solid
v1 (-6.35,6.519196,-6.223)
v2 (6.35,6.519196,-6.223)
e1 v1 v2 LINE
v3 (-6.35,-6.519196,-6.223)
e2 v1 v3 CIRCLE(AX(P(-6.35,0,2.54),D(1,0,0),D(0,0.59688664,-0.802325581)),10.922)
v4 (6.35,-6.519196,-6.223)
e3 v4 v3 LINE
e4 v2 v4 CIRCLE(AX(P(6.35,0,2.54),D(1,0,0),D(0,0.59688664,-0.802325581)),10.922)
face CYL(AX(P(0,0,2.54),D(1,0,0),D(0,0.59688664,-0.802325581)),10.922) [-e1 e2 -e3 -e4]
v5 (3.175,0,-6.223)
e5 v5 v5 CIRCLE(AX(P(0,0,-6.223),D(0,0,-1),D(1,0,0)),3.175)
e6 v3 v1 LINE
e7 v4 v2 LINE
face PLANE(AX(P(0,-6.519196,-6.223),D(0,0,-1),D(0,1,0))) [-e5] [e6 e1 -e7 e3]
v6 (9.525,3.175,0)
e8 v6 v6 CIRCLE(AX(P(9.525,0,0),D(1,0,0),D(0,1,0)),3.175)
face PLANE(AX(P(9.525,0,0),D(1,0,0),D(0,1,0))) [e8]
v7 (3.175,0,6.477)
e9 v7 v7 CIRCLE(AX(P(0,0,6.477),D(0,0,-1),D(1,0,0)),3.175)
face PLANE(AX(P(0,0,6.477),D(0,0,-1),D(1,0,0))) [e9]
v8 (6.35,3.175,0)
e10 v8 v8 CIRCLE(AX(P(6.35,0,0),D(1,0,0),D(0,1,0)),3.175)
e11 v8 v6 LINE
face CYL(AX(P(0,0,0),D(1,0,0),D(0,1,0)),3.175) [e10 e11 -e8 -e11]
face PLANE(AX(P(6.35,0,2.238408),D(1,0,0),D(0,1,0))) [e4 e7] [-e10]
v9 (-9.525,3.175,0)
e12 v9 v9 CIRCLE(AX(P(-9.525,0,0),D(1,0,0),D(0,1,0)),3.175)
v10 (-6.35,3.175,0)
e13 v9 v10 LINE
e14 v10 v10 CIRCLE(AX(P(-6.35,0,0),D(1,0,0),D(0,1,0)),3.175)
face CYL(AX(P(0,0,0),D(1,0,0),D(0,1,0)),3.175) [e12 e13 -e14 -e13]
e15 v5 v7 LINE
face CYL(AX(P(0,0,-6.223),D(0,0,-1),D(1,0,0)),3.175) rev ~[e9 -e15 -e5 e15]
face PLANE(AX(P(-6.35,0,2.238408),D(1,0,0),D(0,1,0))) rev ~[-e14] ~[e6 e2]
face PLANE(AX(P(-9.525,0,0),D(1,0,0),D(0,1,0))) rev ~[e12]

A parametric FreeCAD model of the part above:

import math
import FreeCAD as App
import Part
import Sketcher
from FreeCAD import Vector
Q = App.Units.Quantity

doc = App.newDocument("Part")
params = doc.addObject("Spreadsheet::Sheet", "Params")
for row, (alias, value) in enumerate([
    ("sketch1_radius", "0.43 in"),
    ("pad1_length", "0.5 in"),
    ("sketch2_diameter", "0.25 in"),
    ("pad2_length", "0.75 in"),
    ("sketch3_diameter", "0.25 in"),
    ("pad3_length", "0.75 in"),
    ("sketch4_diameter", "0.25 in"),
    ("pocket1_length", "0.5 in"),
], start=1):
    params.set(f"A{row}", alias)
    params.set(f"B{row}", "=" + value)
    params.setAlias(f"B{row}", alias)

body = doc.addObject("PartDesign::Body", "Body")

sketch1 = doc.addObject("Sketcher::SketchObject", "Sketch")
body.addObject(sketch1)
sketch1.AttachmentSupport = (doc.YZ_Plane, [""])
sketch1.MapMode = "FlatFace"
sketch1.addGeometry([
    Part.LineSegment(Vector(-7, -6, 0), Vector(7, -6, 0)),
    Part.ArcOfCircle(Part.Circle(Vector(0, 3, 0), Vector(0, 0, 1), 11), math.radians(-53), math.radians(233)),
], False)
sketch1.addConstraint([
    Sketcher.Constraint("Coincident", 0, 1, 1, 2),
    Sketcher.Constraint("Coincident", 1, 1, 0, 2),
    Sketcher.Constraint("Horizontal", 0),
    Sketcher.Constraint("PointOnObject", 1, 3, -2),
    Sketcher.Constraint("Radius", 1, Q("0.43 in")),
    Sketcher.Constraint("DistanceY", -1, 1, 1, 3, Q("0.1 in")),
    Sketcher.Constraint("DistanceY", 0, 1, -1, 1, Q("0.245 in")),
])
sketch1.setExpression("Constraints[4]", "Params.sketch1_radius")
pad1 = doc.addObject("PartDesign::Pad", "Pad")
body.addObject(pad1)
pad1.Profile = sketch1
pad1.setExpression("Length", "Params.pad1_length")
pad1.Midplane = True
body2 = doc.addObject("PartDesign::Body", "Body001")

sketch2 = doc.addObject("Sketcher::SketchObject", "Sketch001")
body2.addObject(sketch2)
sketch2.AttachmentSupport = (doc.getObject("YZ_Plane001"), [""])
sketch2.MapMode = "FlatFace"
sketch2.addGeometry(Part.Circle(Vector(0, 0, 0), Vector(0, 0, 1), 3.2), False)
sketch2.addConstraint([
    Sketcher.Constraint("Coincident", 0, 3, -1, 1),
    Sketcher.Constraint("Diameter", 0, Q("0.25 in")),
])
sketch2.setExpression("Constraints[1]", "Params.sketch2_diameter")
pad2 = doc.addObject("PartDesign::Pad", "Pad001")
body2.addObject(pad2)
pad2.Profile = sketch2
pad2.setExpression("Length", "Params.pad2_length")
pad2.Midplane = True
doc.recompute()

boolean = doc.addObject("PartDesign::Boolean", "Boolean")
body.addObject(boolean)
boolean.Type = "Fuse"
boolean.addObjects([body2])

sketch3 = doc.addObject("Sketcher::SketchObject", "Sketch002")
body.addObject(sketch3)
sketch3.AttachmentSupport = (doc.YZ_Plane, [""])
sketch3.MapMode = "FlatFace"
sketch3.addGeometry(Part.Circle(Vector(0, 0, 0), Vector(0, 0, 1), 3.2), False)
sketch3.addConstraint([
    Sketcher.Constraint("Coincident", 0, 3, -1, 1),
    Sketcher.Constraint("Diameter", 0, Q("0.25 in")),
])
sketch3.setExpression("Constraints[1]", "Params.sketch3_diameter")
pad3 = doc.addObject("PartDesign::Pad", "Pad002")
body.addObject(pad3)
pad3.Profile = sketch3
pad3.setExpression("Length", "Params.pad3_length")
pad3.Midplane = True

sketch4 = doc.addObject("Sketcher::SketchObject", "Sketch003")
body.addObject(sketch4)
sketch4.AttachmentSupport = (doc.XY_Plane, [""])
sketch4.MapMode = "FlatFace"
sketch4.AttachmentOffset = App.Placement(Vector(0, 0, -0.245 * 25.4), App.Rotation())
sketch4.addGeometry(Part.Circle(Vector(0, 0, 0), Vector(0, 0, 1), 3.2), False)
sketch4.addConstraint([
    Sketcher.Constraint("Coincident", 0, 3, -1, 1),
    Sketcher.Constraint("Diameter", 0, Q("0.25 in")),
])
sketch4.setExpression("Constraints[1]", "Params.sketch4_diameter")
pocket1 = doc.addObject("PartDesign::Pocket", "Pocket")
body.addObject(pocket1)
pocket1.Profile = sketch4
pocket1.setExpression("Length", "Params.pocket1_length")
pocket1.Reversed = True

doc.recompute()
